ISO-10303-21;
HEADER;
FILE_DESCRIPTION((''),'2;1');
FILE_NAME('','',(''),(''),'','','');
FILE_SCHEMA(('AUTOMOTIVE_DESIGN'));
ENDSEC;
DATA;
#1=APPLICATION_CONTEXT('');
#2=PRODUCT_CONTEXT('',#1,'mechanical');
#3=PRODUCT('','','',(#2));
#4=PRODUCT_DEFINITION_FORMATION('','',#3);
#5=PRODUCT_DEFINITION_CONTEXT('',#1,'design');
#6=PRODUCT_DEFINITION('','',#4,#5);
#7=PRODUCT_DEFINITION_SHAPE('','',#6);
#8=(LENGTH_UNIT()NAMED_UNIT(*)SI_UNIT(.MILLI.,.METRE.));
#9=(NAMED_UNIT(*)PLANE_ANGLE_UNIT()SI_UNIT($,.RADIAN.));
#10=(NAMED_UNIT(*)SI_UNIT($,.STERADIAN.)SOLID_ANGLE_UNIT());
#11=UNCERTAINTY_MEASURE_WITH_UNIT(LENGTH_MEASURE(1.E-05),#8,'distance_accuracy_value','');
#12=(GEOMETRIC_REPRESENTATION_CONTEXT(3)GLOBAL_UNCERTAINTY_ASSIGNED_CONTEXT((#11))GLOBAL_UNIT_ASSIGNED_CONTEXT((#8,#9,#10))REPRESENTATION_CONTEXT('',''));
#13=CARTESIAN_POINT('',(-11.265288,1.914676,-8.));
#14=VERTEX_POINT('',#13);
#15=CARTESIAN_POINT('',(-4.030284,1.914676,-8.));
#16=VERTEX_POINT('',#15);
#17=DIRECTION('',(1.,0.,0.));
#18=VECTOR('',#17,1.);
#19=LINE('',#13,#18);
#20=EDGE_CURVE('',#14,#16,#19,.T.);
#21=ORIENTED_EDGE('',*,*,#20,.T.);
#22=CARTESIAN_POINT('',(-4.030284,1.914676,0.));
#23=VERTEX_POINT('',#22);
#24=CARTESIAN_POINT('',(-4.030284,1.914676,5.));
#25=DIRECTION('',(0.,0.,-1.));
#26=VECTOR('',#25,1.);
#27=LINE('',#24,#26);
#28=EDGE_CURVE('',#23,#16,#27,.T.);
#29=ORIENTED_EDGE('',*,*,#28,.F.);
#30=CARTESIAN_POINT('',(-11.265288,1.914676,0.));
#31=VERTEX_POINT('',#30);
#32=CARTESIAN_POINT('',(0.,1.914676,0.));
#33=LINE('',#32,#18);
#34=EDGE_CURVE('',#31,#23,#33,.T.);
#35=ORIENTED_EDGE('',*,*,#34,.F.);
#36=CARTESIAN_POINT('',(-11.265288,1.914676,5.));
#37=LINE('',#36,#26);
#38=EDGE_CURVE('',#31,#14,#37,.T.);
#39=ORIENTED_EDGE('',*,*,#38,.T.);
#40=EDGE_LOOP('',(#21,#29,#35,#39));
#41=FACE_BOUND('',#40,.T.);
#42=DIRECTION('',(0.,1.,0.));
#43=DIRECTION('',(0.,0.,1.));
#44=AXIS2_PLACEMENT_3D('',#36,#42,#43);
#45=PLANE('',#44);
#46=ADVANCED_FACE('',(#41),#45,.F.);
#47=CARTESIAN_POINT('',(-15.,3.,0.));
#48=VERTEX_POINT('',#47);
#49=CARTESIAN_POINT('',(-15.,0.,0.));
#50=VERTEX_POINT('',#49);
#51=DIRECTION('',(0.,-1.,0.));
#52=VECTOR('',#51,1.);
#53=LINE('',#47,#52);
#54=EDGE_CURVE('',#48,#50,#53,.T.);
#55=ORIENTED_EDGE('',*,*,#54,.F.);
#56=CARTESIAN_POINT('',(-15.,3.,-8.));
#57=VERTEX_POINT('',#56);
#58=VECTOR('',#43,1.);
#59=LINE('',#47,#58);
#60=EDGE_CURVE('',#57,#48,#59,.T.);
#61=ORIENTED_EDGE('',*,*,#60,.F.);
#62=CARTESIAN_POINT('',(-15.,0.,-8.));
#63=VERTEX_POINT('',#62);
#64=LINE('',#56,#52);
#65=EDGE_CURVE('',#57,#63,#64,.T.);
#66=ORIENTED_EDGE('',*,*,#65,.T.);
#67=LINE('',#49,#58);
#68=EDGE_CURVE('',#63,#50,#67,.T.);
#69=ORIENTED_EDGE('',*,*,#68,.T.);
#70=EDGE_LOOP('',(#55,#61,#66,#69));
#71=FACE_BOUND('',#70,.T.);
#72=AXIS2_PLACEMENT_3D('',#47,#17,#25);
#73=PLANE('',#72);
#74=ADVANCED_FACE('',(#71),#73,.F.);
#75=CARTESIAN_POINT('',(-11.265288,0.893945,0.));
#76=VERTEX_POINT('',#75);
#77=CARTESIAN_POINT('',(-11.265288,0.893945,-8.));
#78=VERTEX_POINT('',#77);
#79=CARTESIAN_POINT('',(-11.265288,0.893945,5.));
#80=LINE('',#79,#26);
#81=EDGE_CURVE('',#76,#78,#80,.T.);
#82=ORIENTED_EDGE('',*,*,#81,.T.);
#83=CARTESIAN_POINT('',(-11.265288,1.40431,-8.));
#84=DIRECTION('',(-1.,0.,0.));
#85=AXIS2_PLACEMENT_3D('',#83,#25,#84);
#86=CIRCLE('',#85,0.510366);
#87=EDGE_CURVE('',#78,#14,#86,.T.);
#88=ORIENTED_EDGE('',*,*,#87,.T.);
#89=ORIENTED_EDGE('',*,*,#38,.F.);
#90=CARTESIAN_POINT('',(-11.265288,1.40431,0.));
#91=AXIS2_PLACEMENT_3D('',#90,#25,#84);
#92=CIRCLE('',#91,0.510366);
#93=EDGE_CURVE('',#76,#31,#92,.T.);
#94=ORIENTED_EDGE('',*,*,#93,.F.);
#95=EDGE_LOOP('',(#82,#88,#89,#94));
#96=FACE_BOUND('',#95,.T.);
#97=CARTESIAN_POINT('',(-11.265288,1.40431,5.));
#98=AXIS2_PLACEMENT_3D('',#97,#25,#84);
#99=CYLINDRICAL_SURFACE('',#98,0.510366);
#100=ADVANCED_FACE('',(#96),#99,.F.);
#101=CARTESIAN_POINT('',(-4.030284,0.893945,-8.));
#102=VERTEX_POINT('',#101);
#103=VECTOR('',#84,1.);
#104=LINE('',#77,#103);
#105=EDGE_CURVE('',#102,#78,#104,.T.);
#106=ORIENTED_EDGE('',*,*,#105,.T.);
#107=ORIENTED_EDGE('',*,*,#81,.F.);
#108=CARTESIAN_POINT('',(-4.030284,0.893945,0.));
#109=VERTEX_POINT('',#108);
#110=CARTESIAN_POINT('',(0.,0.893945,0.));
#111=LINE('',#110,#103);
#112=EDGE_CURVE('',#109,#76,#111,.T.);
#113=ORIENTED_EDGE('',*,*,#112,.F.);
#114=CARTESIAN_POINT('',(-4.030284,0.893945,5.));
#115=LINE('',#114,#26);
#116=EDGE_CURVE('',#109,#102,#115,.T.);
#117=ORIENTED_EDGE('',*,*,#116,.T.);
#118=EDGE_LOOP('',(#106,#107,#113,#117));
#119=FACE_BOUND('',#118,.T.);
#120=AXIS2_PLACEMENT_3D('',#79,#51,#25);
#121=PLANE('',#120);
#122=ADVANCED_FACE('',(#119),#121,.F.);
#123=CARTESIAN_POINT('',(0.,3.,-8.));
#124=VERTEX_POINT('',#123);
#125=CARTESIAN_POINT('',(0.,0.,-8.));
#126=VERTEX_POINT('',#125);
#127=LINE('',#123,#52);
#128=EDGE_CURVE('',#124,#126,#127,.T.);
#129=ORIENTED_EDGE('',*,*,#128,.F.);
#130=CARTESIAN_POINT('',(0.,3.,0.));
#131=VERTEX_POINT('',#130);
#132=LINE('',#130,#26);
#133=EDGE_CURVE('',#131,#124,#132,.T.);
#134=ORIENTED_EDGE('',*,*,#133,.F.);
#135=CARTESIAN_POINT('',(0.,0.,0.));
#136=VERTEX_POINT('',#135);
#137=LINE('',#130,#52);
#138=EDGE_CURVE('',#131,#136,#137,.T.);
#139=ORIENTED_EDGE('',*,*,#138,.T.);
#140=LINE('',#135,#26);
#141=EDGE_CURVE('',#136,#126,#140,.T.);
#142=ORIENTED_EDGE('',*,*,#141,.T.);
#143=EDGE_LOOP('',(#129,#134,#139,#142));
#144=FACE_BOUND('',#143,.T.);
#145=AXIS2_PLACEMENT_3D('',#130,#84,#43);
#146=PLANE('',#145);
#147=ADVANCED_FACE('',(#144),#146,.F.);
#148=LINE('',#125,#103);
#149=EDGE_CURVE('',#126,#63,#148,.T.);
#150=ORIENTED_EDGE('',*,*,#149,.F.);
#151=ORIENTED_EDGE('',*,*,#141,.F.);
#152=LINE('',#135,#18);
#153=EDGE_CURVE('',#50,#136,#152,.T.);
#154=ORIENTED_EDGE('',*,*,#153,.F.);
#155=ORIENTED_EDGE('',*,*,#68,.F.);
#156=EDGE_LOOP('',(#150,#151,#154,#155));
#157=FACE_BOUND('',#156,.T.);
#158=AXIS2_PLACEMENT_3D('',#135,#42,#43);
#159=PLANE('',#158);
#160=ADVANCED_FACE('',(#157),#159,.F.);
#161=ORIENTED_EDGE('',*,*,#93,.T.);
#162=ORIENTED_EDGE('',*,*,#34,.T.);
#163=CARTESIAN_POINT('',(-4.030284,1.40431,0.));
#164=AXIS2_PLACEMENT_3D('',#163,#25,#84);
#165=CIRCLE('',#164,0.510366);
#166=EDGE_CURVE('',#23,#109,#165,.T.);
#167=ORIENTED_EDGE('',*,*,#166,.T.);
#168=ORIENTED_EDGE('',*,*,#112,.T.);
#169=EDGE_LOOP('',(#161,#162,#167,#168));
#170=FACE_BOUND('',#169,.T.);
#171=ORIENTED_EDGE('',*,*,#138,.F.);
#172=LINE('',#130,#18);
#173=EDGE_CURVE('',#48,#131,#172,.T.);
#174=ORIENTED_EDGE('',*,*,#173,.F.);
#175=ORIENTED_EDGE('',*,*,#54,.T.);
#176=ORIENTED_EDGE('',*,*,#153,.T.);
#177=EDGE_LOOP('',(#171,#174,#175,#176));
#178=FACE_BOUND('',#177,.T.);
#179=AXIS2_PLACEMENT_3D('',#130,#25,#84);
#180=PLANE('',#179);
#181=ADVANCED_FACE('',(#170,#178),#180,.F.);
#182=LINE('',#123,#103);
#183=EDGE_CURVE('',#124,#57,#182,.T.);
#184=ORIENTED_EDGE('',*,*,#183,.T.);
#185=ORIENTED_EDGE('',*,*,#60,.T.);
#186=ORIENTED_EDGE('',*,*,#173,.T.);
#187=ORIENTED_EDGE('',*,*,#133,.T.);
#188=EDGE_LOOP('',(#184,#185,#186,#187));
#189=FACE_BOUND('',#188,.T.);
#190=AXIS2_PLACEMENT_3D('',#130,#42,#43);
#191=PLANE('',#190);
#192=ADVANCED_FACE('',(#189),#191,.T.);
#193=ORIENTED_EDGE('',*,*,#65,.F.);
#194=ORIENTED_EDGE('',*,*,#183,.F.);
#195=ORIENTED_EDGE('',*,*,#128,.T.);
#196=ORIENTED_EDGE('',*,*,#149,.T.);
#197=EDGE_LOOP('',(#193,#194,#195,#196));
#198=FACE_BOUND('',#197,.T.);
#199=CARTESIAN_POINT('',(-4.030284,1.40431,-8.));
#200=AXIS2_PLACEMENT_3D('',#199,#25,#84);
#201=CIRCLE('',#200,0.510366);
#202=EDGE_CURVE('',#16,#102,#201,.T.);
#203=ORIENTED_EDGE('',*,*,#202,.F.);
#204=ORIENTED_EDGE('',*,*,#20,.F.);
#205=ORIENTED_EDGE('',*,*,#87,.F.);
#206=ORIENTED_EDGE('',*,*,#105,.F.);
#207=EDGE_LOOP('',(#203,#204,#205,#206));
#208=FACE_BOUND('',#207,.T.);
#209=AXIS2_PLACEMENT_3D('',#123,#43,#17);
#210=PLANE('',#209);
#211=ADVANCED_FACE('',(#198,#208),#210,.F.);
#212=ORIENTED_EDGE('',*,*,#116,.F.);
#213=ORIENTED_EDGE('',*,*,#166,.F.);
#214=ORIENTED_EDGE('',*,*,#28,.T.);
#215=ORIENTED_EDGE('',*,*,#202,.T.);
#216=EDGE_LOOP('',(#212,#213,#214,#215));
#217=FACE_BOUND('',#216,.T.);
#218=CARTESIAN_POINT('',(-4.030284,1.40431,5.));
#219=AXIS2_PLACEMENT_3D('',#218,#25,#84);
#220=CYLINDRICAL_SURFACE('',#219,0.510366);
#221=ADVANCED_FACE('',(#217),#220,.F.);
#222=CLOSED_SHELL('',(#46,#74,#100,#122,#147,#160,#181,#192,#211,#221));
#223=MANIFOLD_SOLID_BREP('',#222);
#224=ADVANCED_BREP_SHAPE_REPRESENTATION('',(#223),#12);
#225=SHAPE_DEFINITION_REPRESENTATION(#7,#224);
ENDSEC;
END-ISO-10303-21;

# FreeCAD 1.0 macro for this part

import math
import FreeCAD as App
import Part
import Sketcher

V = App.Vector


def add_polygon(sketch, points):
    """Adds a closed chain of lines whose ends are joined by coincident constraints."""
    first, n = sketch.GeometryCount, len(points)
    for a, b in zip(points, points[1:] + points[:1]):
        sketch.addGeometry(Part.LineSegment(App.Vector(*a, 0), App.Vector(*b, 0)), False)
    for i in range(n):
        sketch.addConstraint(Sketcher.Constraint("Coincident", first + i, 2, first + (i + 1) % n, 1))

doc = App.newDocument("Part")
body = doc.addObject("PartDesign::Body", "Body")

# Sketch on XZ plane
sketch1 = body.newObject("Sketcher::SketchObject", "Sketch")
sketch1.AttachmentSupport = (doc.getObject("XZ_Plane"), [""])
sketch1.MapMode = "FlatFace"
add_polygon(sketch1, [(-15, -8), (-15, 0), (0, 0), (0, -8)])  # lines 0-3
sketch1.addConstraint([
    Sketcher.Constraint("Vertical", 0),
    Sketcher.Constraint("Horizontal", 1),
    Sketcher.Constraint("Vertical", 2),
    Sketcher.Constraint("Horizontal", 3),
    Sketcher.Constraint("Coincident", 1, 2, -1, 1),
    Sketcher.Constraint("DistanceX", 1, 1, 1, 2, 15.0),
    Sketcher.Constraint("DistanceY", 0, 1, 0, 2, 8.0),
])
pad1 = body.newObject("PartDesign::Pad", "Pad")
pad1.Profile = sketch1
pad1.Length = 3
pad1.Reversed = True

# Sketch on XY plane
sketch2 = body.newObject("Sketcher::SketchObject", "Sketch001")
sketch2.AttachmentSupport = (doc.getObject("XY_Plane"), [""])
sketch2.MapMode = "FlatFace"
sketch2.AttachmentOffset = App.Placement(V(0, 0, -8), App.Rotation())
sketch2.addGeometry([
    Part.LineSegment(V(-4, 0.9, 0), V(-11.3, 0.9, 0)),
    Part.ArcOfCircle(Part.Circle(V(-11.3, 1.4, 0), V(0, 0, 1), 0.5), math.radians(90), math.radians(270)),
    Part.LineSegment(V(-11.3, 1.9, 0), V(-4, 1.9, 0)),
    Part.ArcOfCircle(Part.Circle(V(-4, 1.4, 0), V(0, 0, 1), 0.5), math.radians(-90), math.radians(90)),
], False)
sketch2.addConstraint([
    Sketcher.Constraint("Tangent", 0, 2, 1, 2),
    Sketcher.Constraint("Tangent", 1, 1, 2, 1),
    Sketcher.Constraint("Tangent", 2, 2, 3, 2),
    Sketcher.Constraint("Tangent", 3, 1, 0, 1),
    Sketcher.Constraint("Horizontal", 0),
    Sketcher.Constraint("Horizontal", 2),
    Sketcher.Constraint("Radius", 1, 0.510366),
    Sketcher.Constraint("DistanceX", 0, 2, 0, 1, 7.235003),
    Sketcher.Constraint("DistanceY", -1, 1, 1, 3, 1.40431),
    Sketcher.Constraint("DistanceX", 1, 3, -1, 1, 11.265288),
])
pocket1 = body.newObject("PartDesign::Pocket", "Pocket")
pocket1.Profile = sketch2
pocket1.Length = 13
pocket1.Reversed = True

doc.recompute()
